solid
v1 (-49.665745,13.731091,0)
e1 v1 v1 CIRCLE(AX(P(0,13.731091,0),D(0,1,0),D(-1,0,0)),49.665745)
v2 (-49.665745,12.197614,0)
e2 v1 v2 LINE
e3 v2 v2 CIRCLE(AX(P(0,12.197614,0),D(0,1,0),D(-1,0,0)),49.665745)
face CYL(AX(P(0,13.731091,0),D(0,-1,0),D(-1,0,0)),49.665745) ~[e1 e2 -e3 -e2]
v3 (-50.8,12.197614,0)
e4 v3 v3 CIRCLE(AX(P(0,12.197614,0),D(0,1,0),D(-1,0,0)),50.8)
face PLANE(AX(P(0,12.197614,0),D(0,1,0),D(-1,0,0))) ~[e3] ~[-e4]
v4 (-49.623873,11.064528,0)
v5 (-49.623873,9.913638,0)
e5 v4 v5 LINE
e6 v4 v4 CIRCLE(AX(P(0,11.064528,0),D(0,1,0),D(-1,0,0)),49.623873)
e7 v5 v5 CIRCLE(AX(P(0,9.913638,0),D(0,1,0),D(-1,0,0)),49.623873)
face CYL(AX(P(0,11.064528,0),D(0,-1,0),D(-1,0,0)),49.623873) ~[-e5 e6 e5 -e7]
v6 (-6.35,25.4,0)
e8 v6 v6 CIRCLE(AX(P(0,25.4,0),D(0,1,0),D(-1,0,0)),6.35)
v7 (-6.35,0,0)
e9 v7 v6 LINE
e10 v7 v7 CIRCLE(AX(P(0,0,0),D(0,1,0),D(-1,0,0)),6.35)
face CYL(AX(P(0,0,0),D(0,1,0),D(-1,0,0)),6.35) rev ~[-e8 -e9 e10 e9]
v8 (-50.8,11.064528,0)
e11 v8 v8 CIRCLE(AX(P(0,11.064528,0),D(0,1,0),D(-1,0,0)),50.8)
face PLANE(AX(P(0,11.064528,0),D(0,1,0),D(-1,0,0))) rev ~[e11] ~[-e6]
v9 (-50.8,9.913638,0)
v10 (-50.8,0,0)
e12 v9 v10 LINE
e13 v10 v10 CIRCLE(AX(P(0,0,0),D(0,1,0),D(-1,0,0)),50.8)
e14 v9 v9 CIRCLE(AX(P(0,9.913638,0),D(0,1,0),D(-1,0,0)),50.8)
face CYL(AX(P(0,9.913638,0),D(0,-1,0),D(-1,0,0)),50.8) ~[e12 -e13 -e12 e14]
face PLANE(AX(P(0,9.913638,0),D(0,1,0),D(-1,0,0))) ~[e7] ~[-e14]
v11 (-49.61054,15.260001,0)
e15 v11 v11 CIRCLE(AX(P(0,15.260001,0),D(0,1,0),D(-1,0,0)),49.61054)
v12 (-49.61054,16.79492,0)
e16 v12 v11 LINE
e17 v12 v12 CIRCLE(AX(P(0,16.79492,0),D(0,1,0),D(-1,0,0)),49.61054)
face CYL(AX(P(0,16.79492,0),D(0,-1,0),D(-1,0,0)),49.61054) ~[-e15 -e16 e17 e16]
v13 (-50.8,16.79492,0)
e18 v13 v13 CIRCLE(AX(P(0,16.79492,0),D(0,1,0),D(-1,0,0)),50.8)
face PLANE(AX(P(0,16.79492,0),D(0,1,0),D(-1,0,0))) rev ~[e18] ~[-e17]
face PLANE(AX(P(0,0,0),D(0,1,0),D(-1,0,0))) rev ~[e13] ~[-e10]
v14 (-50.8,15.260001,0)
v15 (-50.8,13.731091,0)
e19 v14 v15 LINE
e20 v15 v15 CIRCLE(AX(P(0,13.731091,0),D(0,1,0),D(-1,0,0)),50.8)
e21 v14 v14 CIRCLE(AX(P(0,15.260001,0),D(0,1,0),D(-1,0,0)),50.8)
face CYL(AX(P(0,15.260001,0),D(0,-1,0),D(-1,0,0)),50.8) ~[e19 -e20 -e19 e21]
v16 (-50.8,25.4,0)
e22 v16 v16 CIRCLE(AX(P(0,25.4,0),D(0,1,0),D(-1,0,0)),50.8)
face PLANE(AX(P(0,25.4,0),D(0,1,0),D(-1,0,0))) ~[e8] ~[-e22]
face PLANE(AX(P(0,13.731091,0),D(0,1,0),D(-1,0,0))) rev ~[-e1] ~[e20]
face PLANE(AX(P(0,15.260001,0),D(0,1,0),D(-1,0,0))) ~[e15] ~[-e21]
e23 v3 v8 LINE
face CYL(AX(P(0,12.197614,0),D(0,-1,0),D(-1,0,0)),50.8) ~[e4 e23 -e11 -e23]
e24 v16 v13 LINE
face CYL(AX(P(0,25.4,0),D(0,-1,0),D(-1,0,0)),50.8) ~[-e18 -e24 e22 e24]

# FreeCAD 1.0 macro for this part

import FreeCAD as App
import Part
import Sketcher
Q = App.Units.Quantity

doc = App.newDocument("Part")
params = doc.addObject("Spreadsheet::Sheet", "Params")
for row, (alias, value) in enumerate([
    ("sketch1_height", "1 in"),
    ("sketch1_width", "1.75 in"),
    ("revolution_angle", "360 deg"),
], start=1):
    params.set(f"A{row}", alias)
    params.set(f"B{row}", "=" + value)
    params.setAlias(f"B{row}", alias)

body = doc.addObject("PartDesign::Body", "Body")

sketch1 = body.newObject("Sketcher::SketchObject", "Sketch")
sketch1.AttachmentSupport = (doc.getObject("XY_Plane"), [""])
sketch1.MapMode = "FlatFace"
sketch1.addGeometry([
    Part.LineSegment(App.Vector(-50.8, 0, 0), App.Vector(-6.3, 0, 0)),
    Part.LineSegment(App.Vector(-6.3, 0, 0), App.Vector(-6.3, 25.4, 0)),
    Part.LineSegment(App.Vector(-6.3, 25.4, 0), App.Vector(-50.8, 25.4, 0)),
    Part.LineSegment(App.Vector(-50.8, 25.4, 0), App.Vector(-50.8, 16.8, 0)),
    Part.LineSegment(App.Vector(-50.8, 16.8, 0), App.Vector(-49.6, 16.8, 0)),
    Part.LineSegment(App.Vector(-49.6, 16.8, 0), App.Vector(-49.6, 15.3, 0)),
    Part.LineSegment(App.Vector(-49.6, 15.3, 0), App.Vector(-50.8, 15.3, 0)),
    Part.LineSegment(App.Vector(-50.8, 15.3, 0), App.Vector(-50.8, 13.7, 0)),
    Part.LineSegment(App.Vector(-50.8, 13.7, 0), App.Vector(-49.7, 13.7, 0)),
    Part.LineSegment(App.Vector(-49.7, 13.7, 0), App.Vector(-49.7, 12.2, 0)),
    Part.LineSegment(App.Vector(-49.7, 12.2, 0), App.Vector(-50.8, 12.2, 0)),
    Part.LineSegment(App.Vector(-50.8, 12.2, 0), App.Vector(-50.8, 11.1, 0)),
    Part.LineSegment(App.Vector(-50.8, 11.1, 0), App.Vector(-49.6, 11.1, 0)),
    Part.LineSegment(App.Vector(-49.6, 11.1, 0), App.Vector(-49.6, 9.9, 0)),
    Part.LineSegment(App.Vector(-49.6, 9.9, 0), App.Vector(-50.8, 9.9, 0)),
    Part.LineSegment(App.Vector(-50.8, 9.9, 0), App.Vector(-50.8, 0, 0)),
], False)
sketch1.addConstraint([
    Sketcher.Constraint("Coincident", 0, 2, 1, 1),
    Sketcher.Constraint("Coincident", 1, 2, 2, 1),
    Sketcher.Constraint("Coincident", 2, 2, 3, 1),
    Sketcher.Constraint("Coincident", 3, 2, 4, 1),
    Sketcher.Constraint("Coincident", 4, 2, 5, 1),
    Sketcher.Constraint("Coincident", 5, 2, 6, 1),
    Sketcher.Constraint("Coincident", 6, 2, 7, 1),
    Sketcher.Constraint("Coincident", 7, 2, 8, 1),
    Sketcher.Constraint("Coincident", 8, 2, 9, 1),
    Sketcher.Constraint("Coincident", 9, 2, 10, 1),
    Sketcher.Constraint("Coincident", 10, 2, 11, 1),
    Sketcher.Constraint("Coincident", 11, 2, 12, 1),
    Sketcher.Constraint("Coincident", 12, 2, 13, 1),
    Sketcher.Constraint("Coincident", 13, 2, 14, 1),
    Sketcher.Constraint("Coincident", 14, 2, 15, 1),
    Sketcher.Constraint("Coincident", 15, 2, 0, 1),
    Sketcher.Constraint("Horizontal", 0),
    Sketcher.Constraint("Vertical", 1),
    Sketcher.Constraint("Horizontal", 2),
    Sketcher.Constraint("Vertical", 3),
    Sketcher.Constraint("Horizontal", 4),
    Sketcher.Constraint("Vertical", 5),
    Sketcher.Constraint("Horizontal", 6),
    Sketcher.Constraint("Vertical", 7),
    Sketcher.Constraint("Horizontal", 8),
    Sketcher.Constraint("Vertical", 9),
    Sketcher.Constraint("Horizontal", 10),
    Sketcher.Constraint("Vertical", 11),
    Sketcher.Constraint("Horizontal", 12),
    Sketcher.Constraint("Vertical", 13),
    Sketcher.Constraint("Horizontal", 14),
    Sketcher.Constraint("Vertical", 15),
    Sketcher.Constraint("PointOnObject", 0, 2, -1),
    Sketcher.Constraint("Vertical", 3, 2, 6, 2),
    Sketcher.Constraint("Vertical", 7, 2, 10, 2),
    Sketcher.Constraint("Vertical", 11, 2, 14, 2),
    Sketcher.Constraint("DistanceY", 1, 1, 1, 2, Q("1 in")),
    Sketcher.Constraint("DistanceX", 2, 2, -1, 1, Q("2 in")),
    Sketcher.Constraint("DistanceX", 0, 1, 0, 2, Q("1.75 in")),
    Sketcher.Constraint("DistanceX", 4, 1, 4, 2, Q("1.18946 mm")),
    Sketcher.Constraint("DistanceY", 3, 2, 3, 1, Q("8.60508 mm")),
    Sketcher.Constraint("DistanceY", 5, 2, 5, 1, Q("1.534919 mm")),
    Sketcher.Constraint("DistanceY", 7, 2, 7, 1, Q("1.52891 mm")),
    Sketcher.Constraint("DistanceY", 13, 2, 13, 1, Q("1.15089 mm")),
    Sketcher.Constraint("DistanceY", 15, 2, 15, 1, Q("9.913638 mm")),
    Sketcher.Constraint("DistanceX", 8, 1, 8, 2, Q("1.134255 mm")),
    Sketcher.Constraint("DistanceX", 12, 1, 12, 2, Q("1.176127 mm")),
    Sketcher.Constraint("DistanceY", 9, 2, 9, 1, Q("1.533477 mm")),
])
sketch1.setExpression("Constraints[36]", "Params.sketch1_height")
sketch1.setExpression("Constraints[38]", "Params.sketch1_width")
revolution = body.newObject("PartDesign::Revolution", "Revolution")
revolution.Profile = sketch1
revolution.ReferenceAxis = (sketch1, ["V_Axis"])
revolution.setExpression("Angle", "Params.revolution_angle")

doc.recompute()
